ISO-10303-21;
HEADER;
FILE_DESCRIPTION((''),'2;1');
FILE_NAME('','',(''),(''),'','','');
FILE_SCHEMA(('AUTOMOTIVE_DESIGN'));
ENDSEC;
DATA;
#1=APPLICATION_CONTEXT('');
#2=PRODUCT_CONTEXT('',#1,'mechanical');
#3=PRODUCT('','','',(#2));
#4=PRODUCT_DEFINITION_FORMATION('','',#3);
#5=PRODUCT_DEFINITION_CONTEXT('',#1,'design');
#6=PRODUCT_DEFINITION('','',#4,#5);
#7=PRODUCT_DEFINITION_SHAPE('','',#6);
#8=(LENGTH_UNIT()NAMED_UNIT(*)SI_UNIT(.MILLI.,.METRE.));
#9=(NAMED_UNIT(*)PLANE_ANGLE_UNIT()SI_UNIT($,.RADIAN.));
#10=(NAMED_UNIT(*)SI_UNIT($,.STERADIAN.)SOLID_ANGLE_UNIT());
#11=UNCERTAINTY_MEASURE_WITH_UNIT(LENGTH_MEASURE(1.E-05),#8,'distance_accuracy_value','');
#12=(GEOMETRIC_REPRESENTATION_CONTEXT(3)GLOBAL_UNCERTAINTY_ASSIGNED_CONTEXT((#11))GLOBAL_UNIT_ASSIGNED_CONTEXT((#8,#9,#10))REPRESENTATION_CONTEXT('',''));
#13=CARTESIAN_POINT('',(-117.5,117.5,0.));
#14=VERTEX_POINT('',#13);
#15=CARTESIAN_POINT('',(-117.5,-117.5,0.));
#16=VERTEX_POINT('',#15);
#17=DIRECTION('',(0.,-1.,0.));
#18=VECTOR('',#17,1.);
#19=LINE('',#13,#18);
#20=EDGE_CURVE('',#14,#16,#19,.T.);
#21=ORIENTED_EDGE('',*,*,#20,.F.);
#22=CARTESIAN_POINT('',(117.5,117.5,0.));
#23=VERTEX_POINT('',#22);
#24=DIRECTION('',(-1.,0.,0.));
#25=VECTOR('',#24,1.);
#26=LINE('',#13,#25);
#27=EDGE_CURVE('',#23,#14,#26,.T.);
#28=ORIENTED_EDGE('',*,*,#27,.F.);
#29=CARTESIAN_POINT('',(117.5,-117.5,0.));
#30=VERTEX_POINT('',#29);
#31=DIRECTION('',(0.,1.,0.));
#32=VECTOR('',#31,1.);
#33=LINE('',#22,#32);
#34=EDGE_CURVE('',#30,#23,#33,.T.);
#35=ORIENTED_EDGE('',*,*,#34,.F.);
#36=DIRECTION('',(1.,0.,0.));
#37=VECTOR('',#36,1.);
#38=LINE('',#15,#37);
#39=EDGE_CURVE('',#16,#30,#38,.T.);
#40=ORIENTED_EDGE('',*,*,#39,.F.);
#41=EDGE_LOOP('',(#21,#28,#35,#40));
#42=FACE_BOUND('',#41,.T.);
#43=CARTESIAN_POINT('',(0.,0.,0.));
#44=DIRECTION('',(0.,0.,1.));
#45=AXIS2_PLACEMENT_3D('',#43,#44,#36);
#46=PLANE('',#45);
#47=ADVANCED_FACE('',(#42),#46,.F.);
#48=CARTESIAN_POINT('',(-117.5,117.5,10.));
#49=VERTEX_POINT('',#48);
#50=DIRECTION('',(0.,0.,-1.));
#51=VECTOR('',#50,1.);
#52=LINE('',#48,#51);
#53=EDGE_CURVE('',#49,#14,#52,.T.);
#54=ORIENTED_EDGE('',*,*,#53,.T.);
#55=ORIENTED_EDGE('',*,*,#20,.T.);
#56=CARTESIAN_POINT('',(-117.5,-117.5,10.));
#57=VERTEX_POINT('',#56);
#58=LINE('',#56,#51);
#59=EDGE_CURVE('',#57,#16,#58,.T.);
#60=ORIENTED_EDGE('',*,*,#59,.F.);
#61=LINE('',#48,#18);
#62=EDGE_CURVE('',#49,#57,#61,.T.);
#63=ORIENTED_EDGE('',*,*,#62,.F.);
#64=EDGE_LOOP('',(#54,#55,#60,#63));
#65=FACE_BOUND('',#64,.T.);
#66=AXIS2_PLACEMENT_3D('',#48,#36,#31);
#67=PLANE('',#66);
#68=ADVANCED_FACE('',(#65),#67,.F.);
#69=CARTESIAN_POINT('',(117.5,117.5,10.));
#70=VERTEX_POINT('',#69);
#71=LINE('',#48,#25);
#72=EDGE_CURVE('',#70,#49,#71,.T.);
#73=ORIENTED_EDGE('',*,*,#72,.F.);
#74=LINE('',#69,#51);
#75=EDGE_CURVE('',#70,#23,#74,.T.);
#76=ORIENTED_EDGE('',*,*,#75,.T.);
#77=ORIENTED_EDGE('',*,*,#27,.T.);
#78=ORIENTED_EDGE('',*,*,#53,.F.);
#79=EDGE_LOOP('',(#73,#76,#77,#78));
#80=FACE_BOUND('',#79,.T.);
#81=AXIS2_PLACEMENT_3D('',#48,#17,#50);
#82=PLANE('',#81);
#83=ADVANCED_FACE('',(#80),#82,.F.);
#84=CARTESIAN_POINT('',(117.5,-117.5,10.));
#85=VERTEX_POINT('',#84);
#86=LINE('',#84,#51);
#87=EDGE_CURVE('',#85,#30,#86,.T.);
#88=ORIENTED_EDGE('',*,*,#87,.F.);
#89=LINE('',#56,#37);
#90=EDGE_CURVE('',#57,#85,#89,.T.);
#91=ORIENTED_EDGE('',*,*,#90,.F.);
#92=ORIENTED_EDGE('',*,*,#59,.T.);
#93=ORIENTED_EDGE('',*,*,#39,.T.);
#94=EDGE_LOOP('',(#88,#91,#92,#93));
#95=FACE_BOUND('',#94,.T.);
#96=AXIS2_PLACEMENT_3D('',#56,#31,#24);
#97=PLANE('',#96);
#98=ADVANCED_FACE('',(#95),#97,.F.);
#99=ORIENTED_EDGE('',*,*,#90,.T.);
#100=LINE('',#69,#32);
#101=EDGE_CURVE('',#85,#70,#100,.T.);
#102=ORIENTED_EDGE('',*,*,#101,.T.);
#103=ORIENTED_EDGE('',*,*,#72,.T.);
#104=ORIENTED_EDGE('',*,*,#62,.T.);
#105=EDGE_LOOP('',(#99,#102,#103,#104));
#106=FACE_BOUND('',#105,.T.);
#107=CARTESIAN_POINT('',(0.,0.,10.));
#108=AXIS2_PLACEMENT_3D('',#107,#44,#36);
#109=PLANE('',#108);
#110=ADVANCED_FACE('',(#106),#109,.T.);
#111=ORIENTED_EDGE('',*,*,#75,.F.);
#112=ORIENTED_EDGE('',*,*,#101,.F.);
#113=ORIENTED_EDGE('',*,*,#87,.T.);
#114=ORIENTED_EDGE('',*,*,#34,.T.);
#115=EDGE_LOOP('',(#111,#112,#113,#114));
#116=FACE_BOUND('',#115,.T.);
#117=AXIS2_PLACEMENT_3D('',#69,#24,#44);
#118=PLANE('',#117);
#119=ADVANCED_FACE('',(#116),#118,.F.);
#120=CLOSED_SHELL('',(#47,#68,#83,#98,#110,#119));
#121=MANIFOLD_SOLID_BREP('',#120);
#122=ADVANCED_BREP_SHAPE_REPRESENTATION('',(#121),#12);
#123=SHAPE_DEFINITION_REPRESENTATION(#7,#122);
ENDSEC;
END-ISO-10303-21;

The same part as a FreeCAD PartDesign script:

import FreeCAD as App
import Part
import Sketcher
Q = App.Units.Quantity

doc = App.newDocument("Part")
body = doc.addObject("PartDesign::Body", "Body")

# Sketch on XY plane
sketch1 = body.newObject("Sketcher::SketchObject", "Sketch")
sketch1.AttachmentSupport = (doc.getObject("XY_Plane"), [""])
sketch1.MapMode = "FlatFace"
sketch1.addGeometry(Part.LineSegment(App.Vector(-118, 118, 0), App.Vector(-118, -118, 0)), False)
sketch1.addGeometry(Part.LineSegment(App.Vector(-118, -118, 0), App.Vector(118, -118, 0)), False)
sketch1.addGeometry(Part.LineSegment(App.Vector(118, -118, 0), App.Vector(118, 118, 0)), False)
sketch1.addGeometry(Part.LineSegment(App.Vector(118, 118, 0), App.Vector(-118, 118, 0)), False)
sketch1.addConstraint(Sketcher.Constraint("Coincident", 0, 2, 1, 1))
sketch1.addConstraint(Sketcher.Constraint("Coincident", 1, 2, 2, 1))
sketch1.addConstraint(Sketcher.Constraint("Coincident", 2, 2, 3, 1))
sketch1.addConstraint(Sketcher.Constraint("Coincident", 3, 2, 0, 1))
sketch1.addConstraint(Sketcher.Constraint("Vertical", 0))
sketch1.addConstraint(Sketcher.Constraint("Horizontal", 1))
sketch1.addConstraint(Sketcher.Constraint("Vertical", 2))
sketch1.addConstraint(Sketcher.Constraint("Horizontal", 3))
sketch1.addConstraint(Sketcher.Constraint("Symmetric", 0, 2, 2, 2, -1, 1))
sketch1.addConstraint(Sketcher.Constraint("Equal", 3, 0))
sketch1.addConstraint(Sketcher.Constraint("DistanceX", 1, 1, 1, 2, Q("235 mm")))
pad1 = body.newObject("PartDesign::Pad", "Pad")
pad1.Profile = sketch1
pad1.Length = 10

doc.recompute()
